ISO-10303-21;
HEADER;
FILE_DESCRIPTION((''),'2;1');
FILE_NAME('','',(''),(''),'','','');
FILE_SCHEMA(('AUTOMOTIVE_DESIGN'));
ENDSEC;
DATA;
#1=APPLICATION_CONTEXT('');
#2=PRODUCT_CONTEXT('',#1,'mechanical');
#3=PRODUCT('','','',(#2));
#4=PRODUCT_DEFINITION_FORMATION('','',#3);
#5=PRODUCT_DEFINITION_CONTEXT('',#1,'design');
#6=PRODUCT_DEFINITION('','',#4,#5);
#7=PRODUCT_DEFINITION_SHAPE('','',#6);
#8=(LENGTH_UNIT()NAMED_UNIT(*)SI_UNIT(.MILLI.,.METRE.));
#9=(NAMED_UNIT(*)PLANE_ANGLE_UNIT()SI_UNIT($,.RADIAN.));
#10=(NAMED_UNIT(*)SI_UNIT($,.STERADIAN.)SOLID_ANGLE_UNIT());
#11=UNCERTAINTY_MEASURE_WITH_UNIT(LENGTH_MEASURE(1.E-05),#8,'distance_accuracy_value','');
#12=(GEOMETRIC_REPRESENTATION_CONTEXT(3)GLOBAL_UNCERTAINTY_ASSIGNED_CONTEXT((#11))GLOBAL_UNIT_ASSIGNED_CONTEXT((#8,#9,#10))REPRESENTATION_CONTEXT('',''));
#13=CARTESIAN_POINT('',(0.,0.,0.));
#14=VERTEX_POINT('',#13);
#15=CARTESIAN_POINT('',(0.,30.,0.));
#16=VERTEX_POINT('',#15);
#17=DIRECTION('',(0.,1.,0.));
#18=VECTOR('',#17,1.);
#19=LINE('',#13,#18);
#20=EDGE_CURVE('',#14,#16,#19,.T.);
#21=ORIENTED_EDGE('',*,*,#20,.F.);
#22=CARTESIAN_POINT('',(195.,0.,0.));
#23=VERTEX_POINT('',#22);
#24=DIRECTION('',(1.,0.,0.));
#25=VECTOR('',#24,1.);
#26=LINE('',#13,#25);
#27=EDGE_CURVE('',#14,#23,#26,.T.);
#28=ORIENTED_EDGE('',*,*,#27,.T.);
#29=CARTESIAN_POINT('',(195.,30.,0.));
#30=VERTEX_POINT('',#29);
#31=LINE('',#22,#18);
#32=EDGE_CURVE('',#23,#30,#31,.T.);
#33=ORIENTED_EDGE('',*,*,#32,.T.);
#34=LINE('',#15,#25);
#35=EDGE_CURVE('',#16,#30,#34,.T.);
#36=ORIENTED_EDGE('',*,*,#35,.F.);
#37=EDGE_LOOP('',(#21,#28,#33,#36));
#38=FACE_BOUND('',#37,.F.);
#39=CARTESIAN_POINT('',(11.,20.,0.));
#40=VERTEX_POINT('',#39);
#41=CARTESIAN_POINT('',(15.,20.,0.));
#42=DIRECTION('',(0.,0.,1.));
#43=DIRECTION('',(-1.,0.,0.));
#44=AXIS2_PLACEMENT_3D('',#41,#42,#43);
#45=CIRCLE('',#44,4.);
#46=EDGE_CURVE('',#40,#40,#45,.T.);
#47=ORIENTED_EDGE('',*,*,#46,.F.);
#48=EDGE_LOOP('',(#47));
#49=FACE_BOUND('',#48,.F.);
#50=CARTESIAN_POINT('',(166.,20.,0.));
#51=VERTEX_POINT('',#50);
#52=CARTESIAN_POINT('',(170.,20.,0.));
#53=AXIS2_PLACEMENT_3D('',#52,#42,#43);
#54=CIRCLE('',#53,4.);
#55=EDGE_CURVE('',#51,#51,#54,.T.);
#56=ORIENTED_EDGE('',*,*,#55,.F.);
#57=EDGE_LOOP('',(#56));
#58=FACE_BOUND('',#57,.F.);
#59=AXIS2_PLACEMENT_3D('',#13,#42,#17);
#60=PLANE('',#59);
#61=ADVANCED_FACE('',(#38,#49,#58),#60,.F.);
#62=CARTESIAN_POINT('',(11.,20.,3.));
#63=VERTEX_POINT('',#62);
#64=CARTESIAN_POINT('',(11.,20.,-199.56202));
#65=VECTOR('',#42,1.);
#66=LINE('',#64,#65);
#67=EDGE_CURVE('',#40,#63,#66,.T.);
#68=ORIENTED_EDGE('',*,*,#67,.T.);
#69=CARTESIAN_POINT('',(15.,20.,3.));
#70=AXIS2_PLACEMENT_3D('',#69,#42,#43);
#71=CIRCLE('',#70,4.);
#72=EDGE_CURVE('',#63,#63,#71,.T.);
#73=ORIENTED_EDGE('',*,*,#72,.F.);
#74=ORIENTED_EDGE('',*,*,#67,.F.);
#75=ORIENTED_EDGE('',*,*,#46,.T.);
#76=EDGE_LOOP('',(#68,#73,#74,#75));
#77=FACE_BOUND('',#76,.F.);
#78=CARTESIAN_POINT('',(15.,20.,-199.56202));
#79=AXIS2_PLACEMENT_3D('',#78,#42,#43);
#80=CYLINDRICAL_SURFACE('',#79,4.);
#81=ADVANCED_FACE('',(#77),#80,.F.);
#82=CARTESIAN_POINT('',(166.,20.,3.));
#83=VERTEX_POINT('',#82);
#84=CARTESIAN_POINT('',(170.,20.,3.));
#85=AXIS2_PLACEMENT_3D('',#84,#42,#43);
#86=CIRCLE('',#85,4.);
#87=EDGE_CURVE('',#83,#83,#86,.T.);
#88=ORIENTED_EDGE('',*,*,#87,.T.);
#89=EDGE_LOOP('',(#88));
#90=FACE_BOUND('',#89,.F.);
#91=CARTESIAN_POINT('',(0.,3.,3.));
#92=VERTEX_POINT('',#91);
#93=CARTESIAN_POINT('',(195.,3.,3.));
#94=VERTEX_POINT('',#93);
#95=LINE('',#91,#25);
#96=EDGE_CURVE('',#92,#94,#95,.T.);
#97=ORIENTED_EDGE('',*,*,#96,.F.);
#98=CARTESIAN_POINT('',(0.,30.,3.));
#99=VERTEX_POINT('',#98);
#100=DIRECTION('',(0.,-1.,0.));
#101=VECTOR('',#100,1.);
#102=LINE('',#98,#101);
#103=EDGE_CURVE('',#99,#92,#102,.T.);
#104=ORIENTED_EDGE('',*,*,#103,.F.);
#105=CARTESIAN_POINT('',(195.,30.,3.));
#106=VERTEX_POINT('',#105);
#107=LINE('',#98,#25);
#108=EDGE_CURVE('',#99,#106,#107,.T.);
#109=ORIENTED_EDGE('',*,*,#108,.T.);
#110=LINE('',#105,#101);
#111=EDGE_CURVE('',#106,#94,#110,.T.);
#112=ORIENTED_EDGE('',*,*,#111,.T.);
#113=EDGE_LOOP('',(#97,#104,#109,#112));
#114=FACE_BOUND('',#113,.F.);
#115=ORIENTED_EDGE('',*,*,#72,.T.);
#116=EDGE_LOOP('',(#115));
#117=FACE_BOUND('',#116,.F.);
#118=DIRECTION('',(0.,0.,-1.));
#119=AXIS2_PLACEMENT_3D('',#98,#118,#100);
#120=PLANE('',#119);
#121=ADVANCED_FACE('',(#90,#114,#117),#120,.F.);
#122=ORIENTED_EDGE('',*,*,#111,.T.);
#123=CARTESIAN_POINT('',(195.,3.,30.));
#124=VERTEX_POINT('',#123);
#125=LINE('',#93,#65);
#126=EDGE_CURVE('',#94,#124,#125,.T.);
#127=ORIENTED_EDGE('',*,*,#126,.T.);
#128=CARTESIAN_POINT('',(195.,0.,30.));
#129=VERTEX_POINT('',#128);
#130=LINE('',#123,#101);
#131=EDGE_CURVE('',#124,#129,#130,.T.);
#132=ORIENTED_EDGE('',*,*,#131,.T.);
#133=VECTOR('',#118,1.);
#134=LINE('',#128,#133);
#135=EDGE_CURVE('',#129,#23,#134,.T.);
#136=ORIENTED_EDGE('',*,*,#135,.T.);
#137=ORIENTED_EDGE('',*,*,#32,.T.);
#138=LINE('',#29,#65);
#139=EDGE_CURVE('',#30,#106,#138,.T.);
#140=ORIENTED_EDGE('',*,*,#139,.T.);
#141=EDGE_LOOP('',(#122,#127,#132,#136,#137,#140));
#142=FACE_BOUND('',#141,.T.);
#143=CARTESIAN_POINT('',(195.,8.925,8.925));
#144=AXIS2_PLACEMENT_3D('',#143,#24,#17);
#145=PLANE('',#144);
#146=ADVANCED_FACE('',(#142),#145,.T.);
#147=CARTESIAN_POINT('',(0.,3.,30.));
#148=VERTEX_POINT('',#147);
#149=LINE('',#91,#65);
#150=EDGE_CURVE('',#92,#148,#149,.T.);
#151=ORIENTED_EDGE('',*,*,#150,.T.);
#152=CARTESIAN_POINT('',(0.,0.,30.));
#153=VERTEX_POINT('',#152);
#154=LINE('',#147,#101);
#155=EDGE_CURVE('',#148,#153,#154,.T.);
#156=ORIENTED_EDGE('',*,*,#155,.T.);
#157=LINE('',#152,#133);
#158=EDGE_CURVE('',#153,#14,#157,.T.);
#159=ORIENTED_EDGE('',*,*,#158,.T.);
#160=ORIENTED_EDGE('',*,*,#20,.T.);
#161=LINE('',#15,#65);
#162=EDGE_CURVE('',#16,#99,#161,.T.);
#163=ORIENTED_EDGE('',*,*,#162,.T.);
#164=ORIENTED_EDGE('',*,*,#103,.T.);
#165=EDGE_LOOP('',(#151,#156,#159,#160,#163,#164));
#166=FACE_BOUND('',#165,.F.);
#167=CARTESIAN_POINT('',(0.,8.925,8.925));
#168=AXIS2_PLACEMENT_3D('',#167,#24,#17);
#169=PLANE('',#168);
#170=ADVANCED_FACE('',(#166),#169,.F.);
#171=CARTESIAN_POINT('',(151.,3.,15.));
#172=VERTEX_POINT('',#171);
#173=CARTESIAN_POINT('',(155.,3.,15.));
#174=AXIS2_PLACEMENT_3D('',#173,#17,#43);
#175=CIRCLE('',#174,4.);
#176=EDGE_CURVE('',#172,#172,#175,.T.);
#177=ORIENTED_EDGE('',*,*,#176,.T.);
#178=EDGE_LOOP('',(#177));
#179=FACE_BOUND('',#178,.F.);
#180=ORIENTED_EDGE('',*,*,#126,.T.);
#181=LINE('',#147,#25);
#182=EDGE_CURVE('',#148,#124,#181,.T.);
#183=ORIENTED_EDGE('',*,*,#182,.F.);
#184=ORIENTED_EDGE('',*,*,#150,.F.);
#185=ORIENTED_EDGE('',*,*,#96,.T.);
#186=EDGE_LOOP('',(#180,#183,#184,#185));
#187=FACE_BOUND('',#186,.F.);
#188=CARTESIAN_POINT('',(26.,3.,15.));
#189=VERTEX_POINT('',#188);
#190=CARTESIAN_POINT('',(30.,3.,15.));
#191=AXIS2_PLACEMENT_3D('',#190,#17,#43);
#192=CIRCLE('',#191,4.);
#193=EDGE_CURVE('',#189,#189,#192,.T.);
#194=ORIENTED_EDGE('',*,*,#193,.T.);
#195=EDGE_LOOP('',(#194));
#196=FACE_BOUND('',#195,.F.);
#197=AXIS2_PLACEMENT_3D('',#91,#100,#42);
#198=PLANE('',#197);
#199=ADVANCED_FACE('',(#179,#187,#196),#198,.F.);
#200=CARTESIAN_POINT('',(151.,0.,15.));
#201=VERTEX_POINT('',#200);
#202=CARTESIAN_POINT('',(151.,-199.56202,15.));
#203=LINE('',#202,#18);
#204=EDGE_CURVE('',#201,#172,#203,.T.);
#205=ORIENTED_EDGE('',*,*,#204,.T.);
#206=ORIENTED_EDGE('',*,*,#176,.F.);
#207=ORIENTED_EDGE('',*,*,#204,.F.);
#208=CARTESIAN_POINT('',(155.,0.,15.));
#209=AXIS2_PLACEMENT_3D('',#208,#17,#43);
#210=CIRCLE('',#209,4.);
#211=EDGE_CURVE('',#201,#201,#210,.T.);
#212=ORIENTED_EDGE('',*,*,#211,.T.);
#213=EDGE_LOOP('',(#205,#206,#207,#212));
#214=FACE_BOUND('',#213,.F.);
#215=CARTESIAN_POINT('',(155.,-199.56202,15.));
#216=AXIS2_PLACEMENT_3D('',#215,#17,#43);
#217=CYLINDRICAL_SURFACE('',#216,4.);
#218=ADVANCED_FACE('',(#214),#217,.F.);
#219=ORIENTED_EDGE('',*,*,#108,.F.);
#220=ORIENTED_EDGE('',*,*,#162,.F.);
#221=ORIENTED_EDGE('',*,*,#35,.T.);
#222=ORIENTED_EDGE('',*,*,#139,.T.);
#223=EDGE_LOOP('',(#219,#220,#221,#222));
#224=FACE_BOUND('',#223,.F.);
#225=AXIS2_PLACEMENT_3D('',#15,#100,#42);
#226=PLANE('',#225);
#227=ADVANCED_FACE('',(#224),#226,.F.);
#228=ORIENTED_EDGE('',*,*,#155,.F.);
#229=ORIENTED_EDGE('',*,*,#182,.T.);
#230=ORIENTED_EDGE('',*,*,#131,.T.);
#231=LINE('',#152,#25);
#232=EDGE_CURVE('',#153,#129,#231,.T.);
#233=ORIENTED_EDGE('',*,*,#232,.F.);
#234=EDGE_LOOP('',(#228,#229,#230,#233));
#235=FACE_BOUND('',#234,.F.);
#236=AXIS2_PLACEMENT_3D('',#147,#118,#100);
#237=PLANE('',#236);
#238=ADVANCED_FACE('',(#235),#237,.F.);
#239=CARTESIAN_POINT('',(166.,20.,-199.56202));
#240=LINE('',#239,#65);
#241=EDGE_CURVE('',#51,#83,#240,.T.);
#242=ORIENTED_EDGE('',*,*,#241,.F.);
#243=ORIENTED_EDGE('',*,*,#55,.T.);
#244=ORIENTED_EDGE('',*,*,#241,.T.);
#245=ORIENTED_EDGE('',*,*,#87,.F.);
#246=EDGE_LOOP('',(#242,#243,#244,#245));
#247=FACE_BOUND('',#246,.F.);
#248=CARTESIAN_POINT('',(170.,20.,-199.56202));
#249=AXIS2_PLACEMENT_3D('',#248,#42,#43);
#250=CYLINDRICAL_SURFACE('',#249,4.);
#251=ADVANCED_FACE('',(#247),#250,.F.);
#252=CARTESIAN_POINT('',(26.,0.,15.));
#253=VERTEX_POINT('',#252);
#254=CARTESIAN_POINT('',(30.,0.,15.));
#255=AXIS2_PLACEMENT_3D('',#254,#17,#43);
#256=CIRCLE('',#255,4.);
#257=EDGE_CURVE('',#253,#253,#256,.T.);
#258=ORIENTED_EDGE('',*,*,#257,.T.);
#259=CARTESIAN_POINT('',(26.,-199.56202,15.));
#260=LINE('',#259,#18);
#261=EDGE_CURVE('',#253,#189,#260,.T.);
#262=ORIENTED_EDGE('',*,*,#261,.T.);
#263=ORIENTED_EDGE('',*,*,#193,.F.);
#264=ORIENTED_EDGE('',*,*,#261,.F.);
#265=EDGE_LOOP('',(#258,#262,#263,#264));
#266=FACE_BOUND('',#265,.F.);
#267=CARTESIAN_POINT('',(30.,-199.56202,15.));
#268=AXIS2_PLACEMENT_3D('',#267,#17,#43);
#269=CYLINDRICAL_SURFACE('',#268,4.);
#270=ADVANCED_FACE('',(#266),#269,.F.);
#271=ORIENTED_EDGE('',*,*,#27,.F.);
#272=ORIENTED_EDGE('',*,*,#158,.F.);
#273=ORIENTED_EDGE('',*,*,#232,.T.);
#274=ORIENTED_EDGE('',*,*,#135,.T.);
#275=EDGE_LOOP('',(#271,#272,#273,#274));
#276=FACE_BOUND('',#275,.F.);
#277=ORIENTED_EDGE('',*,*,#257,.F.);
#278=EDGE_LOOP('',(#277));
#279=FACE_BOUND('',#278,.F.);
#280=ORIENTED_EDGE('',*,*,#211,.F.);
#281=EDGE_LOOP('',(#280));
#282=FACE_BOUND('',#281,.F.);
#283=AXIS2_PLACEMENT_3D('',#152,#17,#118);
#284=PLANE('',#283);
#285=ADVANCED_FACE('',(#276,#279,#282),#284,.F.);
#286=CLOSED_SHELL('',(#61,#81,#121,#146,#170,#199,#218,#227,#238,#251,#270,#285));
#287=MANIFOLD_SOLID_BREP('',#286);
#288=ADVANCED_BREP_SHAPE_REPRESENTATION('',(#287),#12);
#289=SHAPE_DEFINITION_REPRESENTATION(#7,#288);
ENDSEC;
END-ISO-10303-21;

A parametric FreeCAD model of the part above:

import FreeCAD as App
import Part
import Sketcher
from FreeCAD import Vector
Q = App.Units.Quantity


def add_polygon(sketch, points):
    """Adds a closed chain of lines whose ends are joined by coincident constraints."""
    first, n = sketch.GeometryCount, len(points)
    for a, b in zip(points, points[1:] + points[:1]):
        sketch.addGeometry(Part.LineSegment(App.Vector(*a, 0), App.Vector(*b, 0)), False)
    for i in range(n):
        sketch.addConstraint(Sketcher.Constraint("Coincident", first + i, 2, first + (i + 1) % n, 1))

doc = App.newDocument("Part")
params = doc.addObject("Spreadsheet::Sheet", "Params")
for row, (alias, value) in enumerate([
    ("sketch1_width", "30 mm"),
    ("sketch1_width2", "27 mm"),
    ("pad1_length", "195 mm"),
    ("sketch2_diameter", "8 mm"),
    ("hole_diameter", "8 mm"),
    ("sketch3_diameter", "8 mm"),
    ("hole2_diameter", "8 mm"),
], start=1):
    params.set(f"A{row}", alias)
    params.set(f"B{row}", "=" + value)
    params.setAlias(f"B{row}", alias)

body = doc.addObject("PartDesign::Body", "Body")

# Sketch on YZ plane
sketch1 = body.newObject("Sketcher::SketchObject", "Sketch")
sketch1.AttachmentSupport = (doc.getObject("YZ_Plane"), [""])
sketch1.MapMode = "FlatFace"
add_polygon(sketch1, [(0, 30), (0, 0), (30, 0), (30, 3), (3, 3), (3, 30)])  # lines 0-5
sketch1.addConstraint([
    Sketcher.Constraint("Vertical", 0),
    Sketcher.Constraint("Horizontal", 1),
    Sketcher.Constraint("Vertical", 2),
    Sketcher.Constraint("Horizontal", 3),
    Sketcher.Constraint("Vertical", 4),
    Sketcher.Constraint("Horizontal", 5),
    Sketcher.Constraint("Coincident", 0, 2, -1, 1),
    Sketcher.Constraint("Equal", 1, 0),
    Sketcher.Constraint("Equal", 5, 2),
    Sketcher.Constraint("DistanceX", 1, 1, 1, 2, Q("30 mm")),
    Sketcher.Constraint("DistanceX", 3, 2, 3, 1, Q("27 mm")),
])
sketch1.setExpression("Constraints[15]", "Params.sketch1_width")
sketch1.setExpression("Constraints[16]", "Params.sketch1_width2")
pad1 = body.newObject("PartDesign::Pad", "Pad")
pad1.Profile = sketch1
pad1.setExpression("Length", "Params.pad1_length")

# Sketch on XY plane
sketch2 = body.newObject("Sketcher::SketchObject", "Sketch001")
sketch2.AttachmentSupport = (doc.getObject("XY_Plane"), [""])
sketch2.MapMode = "FlatFace"
sketch2.addGeometry([
    Part.Circle(Vector(15, 20, 0), Vector(0, 0, 1), 4),
    Part.Circle(Vector(170, 20, 0), Vector(0, 0, 1), 4),
], False)
sketch2.addConstraint([
    Sketcher.Constraint("Equal", 0, 1),
    Sketcher.Constraint("Horizontal", 0, 3, 1, 3),
    Sketcher.Constraint("Diameter", 0, Q("8 mm")),
    Sketcher.Constraint("DistanceX", -1, 1, 0, 3, Q("15 mm")),
    Sketcher.Constraint("DistanceY", -1, 1, 0, 3, Q("20 mm")),
    Sketcher.Constraint("DistanceX", -1, 1, 1, 3, Q("170 mm")),
])
sketch2.setExpression("Constraints[2]", "Params.sketch2_diameter")
doc.recompute()
hole = body.newObject("PartDesign::Hole", "Hole")
hole.Profile = sketch2
hole.ThreadType = "None"
hole.setExpression("Diameter", "Params.hole_diameter")
hole.DepthType = "ThroughAll"
hole.Reversed = True

# Sketch on XZ plane
sketch3 = body.newObject("Sketcher::SketchObject", "Sketch002")
sketch3.AttachmentSupport = (doc.getObject("XZ_Plane"), [""])
sketch3.MapMode = "FlatFace"
sketch3.addGeometry([
    Part.Circle(Vector(30, 15, 0), Vector(0, 0, 1), 4),
    Part.Circle(Vector(155, 15, 0), Vector(0, 0, 1), 4),
], False)
sketch3.addConstraint([
    Sketcher.Constraint("Equal", 0, 1),
    Sketcher.Constraint("Horizontal", 0, 3, 1, 3),
    Sketcher.Constraint("Diameter", 0, Q("8 mm")),
    Sketcher.Constraint("DistanceX", -1, 1, 0, 3, Q("30 mm")),
    Sketcher.Constraint("DistanceY", -1, 1, 0, 3, Q("15 mm")),
    Sketcher.Constraint("DistanceX", -1, 1, 1, 3, Q("155 mm")),
])
sketch3.setExpression("Constraints[2]", "Params.sketch3_diameter")
doc.recompute()
hole2 = body.newObject("PartDesign::Hole", "Hole001")
hole2.Profile = sketch3
hole2.ThreadType = "None"
hole2.setExpression("Diameter", "Params.hole2_diameter")
hole2.DepthType = "ThroughAll"

doc.recompute()
